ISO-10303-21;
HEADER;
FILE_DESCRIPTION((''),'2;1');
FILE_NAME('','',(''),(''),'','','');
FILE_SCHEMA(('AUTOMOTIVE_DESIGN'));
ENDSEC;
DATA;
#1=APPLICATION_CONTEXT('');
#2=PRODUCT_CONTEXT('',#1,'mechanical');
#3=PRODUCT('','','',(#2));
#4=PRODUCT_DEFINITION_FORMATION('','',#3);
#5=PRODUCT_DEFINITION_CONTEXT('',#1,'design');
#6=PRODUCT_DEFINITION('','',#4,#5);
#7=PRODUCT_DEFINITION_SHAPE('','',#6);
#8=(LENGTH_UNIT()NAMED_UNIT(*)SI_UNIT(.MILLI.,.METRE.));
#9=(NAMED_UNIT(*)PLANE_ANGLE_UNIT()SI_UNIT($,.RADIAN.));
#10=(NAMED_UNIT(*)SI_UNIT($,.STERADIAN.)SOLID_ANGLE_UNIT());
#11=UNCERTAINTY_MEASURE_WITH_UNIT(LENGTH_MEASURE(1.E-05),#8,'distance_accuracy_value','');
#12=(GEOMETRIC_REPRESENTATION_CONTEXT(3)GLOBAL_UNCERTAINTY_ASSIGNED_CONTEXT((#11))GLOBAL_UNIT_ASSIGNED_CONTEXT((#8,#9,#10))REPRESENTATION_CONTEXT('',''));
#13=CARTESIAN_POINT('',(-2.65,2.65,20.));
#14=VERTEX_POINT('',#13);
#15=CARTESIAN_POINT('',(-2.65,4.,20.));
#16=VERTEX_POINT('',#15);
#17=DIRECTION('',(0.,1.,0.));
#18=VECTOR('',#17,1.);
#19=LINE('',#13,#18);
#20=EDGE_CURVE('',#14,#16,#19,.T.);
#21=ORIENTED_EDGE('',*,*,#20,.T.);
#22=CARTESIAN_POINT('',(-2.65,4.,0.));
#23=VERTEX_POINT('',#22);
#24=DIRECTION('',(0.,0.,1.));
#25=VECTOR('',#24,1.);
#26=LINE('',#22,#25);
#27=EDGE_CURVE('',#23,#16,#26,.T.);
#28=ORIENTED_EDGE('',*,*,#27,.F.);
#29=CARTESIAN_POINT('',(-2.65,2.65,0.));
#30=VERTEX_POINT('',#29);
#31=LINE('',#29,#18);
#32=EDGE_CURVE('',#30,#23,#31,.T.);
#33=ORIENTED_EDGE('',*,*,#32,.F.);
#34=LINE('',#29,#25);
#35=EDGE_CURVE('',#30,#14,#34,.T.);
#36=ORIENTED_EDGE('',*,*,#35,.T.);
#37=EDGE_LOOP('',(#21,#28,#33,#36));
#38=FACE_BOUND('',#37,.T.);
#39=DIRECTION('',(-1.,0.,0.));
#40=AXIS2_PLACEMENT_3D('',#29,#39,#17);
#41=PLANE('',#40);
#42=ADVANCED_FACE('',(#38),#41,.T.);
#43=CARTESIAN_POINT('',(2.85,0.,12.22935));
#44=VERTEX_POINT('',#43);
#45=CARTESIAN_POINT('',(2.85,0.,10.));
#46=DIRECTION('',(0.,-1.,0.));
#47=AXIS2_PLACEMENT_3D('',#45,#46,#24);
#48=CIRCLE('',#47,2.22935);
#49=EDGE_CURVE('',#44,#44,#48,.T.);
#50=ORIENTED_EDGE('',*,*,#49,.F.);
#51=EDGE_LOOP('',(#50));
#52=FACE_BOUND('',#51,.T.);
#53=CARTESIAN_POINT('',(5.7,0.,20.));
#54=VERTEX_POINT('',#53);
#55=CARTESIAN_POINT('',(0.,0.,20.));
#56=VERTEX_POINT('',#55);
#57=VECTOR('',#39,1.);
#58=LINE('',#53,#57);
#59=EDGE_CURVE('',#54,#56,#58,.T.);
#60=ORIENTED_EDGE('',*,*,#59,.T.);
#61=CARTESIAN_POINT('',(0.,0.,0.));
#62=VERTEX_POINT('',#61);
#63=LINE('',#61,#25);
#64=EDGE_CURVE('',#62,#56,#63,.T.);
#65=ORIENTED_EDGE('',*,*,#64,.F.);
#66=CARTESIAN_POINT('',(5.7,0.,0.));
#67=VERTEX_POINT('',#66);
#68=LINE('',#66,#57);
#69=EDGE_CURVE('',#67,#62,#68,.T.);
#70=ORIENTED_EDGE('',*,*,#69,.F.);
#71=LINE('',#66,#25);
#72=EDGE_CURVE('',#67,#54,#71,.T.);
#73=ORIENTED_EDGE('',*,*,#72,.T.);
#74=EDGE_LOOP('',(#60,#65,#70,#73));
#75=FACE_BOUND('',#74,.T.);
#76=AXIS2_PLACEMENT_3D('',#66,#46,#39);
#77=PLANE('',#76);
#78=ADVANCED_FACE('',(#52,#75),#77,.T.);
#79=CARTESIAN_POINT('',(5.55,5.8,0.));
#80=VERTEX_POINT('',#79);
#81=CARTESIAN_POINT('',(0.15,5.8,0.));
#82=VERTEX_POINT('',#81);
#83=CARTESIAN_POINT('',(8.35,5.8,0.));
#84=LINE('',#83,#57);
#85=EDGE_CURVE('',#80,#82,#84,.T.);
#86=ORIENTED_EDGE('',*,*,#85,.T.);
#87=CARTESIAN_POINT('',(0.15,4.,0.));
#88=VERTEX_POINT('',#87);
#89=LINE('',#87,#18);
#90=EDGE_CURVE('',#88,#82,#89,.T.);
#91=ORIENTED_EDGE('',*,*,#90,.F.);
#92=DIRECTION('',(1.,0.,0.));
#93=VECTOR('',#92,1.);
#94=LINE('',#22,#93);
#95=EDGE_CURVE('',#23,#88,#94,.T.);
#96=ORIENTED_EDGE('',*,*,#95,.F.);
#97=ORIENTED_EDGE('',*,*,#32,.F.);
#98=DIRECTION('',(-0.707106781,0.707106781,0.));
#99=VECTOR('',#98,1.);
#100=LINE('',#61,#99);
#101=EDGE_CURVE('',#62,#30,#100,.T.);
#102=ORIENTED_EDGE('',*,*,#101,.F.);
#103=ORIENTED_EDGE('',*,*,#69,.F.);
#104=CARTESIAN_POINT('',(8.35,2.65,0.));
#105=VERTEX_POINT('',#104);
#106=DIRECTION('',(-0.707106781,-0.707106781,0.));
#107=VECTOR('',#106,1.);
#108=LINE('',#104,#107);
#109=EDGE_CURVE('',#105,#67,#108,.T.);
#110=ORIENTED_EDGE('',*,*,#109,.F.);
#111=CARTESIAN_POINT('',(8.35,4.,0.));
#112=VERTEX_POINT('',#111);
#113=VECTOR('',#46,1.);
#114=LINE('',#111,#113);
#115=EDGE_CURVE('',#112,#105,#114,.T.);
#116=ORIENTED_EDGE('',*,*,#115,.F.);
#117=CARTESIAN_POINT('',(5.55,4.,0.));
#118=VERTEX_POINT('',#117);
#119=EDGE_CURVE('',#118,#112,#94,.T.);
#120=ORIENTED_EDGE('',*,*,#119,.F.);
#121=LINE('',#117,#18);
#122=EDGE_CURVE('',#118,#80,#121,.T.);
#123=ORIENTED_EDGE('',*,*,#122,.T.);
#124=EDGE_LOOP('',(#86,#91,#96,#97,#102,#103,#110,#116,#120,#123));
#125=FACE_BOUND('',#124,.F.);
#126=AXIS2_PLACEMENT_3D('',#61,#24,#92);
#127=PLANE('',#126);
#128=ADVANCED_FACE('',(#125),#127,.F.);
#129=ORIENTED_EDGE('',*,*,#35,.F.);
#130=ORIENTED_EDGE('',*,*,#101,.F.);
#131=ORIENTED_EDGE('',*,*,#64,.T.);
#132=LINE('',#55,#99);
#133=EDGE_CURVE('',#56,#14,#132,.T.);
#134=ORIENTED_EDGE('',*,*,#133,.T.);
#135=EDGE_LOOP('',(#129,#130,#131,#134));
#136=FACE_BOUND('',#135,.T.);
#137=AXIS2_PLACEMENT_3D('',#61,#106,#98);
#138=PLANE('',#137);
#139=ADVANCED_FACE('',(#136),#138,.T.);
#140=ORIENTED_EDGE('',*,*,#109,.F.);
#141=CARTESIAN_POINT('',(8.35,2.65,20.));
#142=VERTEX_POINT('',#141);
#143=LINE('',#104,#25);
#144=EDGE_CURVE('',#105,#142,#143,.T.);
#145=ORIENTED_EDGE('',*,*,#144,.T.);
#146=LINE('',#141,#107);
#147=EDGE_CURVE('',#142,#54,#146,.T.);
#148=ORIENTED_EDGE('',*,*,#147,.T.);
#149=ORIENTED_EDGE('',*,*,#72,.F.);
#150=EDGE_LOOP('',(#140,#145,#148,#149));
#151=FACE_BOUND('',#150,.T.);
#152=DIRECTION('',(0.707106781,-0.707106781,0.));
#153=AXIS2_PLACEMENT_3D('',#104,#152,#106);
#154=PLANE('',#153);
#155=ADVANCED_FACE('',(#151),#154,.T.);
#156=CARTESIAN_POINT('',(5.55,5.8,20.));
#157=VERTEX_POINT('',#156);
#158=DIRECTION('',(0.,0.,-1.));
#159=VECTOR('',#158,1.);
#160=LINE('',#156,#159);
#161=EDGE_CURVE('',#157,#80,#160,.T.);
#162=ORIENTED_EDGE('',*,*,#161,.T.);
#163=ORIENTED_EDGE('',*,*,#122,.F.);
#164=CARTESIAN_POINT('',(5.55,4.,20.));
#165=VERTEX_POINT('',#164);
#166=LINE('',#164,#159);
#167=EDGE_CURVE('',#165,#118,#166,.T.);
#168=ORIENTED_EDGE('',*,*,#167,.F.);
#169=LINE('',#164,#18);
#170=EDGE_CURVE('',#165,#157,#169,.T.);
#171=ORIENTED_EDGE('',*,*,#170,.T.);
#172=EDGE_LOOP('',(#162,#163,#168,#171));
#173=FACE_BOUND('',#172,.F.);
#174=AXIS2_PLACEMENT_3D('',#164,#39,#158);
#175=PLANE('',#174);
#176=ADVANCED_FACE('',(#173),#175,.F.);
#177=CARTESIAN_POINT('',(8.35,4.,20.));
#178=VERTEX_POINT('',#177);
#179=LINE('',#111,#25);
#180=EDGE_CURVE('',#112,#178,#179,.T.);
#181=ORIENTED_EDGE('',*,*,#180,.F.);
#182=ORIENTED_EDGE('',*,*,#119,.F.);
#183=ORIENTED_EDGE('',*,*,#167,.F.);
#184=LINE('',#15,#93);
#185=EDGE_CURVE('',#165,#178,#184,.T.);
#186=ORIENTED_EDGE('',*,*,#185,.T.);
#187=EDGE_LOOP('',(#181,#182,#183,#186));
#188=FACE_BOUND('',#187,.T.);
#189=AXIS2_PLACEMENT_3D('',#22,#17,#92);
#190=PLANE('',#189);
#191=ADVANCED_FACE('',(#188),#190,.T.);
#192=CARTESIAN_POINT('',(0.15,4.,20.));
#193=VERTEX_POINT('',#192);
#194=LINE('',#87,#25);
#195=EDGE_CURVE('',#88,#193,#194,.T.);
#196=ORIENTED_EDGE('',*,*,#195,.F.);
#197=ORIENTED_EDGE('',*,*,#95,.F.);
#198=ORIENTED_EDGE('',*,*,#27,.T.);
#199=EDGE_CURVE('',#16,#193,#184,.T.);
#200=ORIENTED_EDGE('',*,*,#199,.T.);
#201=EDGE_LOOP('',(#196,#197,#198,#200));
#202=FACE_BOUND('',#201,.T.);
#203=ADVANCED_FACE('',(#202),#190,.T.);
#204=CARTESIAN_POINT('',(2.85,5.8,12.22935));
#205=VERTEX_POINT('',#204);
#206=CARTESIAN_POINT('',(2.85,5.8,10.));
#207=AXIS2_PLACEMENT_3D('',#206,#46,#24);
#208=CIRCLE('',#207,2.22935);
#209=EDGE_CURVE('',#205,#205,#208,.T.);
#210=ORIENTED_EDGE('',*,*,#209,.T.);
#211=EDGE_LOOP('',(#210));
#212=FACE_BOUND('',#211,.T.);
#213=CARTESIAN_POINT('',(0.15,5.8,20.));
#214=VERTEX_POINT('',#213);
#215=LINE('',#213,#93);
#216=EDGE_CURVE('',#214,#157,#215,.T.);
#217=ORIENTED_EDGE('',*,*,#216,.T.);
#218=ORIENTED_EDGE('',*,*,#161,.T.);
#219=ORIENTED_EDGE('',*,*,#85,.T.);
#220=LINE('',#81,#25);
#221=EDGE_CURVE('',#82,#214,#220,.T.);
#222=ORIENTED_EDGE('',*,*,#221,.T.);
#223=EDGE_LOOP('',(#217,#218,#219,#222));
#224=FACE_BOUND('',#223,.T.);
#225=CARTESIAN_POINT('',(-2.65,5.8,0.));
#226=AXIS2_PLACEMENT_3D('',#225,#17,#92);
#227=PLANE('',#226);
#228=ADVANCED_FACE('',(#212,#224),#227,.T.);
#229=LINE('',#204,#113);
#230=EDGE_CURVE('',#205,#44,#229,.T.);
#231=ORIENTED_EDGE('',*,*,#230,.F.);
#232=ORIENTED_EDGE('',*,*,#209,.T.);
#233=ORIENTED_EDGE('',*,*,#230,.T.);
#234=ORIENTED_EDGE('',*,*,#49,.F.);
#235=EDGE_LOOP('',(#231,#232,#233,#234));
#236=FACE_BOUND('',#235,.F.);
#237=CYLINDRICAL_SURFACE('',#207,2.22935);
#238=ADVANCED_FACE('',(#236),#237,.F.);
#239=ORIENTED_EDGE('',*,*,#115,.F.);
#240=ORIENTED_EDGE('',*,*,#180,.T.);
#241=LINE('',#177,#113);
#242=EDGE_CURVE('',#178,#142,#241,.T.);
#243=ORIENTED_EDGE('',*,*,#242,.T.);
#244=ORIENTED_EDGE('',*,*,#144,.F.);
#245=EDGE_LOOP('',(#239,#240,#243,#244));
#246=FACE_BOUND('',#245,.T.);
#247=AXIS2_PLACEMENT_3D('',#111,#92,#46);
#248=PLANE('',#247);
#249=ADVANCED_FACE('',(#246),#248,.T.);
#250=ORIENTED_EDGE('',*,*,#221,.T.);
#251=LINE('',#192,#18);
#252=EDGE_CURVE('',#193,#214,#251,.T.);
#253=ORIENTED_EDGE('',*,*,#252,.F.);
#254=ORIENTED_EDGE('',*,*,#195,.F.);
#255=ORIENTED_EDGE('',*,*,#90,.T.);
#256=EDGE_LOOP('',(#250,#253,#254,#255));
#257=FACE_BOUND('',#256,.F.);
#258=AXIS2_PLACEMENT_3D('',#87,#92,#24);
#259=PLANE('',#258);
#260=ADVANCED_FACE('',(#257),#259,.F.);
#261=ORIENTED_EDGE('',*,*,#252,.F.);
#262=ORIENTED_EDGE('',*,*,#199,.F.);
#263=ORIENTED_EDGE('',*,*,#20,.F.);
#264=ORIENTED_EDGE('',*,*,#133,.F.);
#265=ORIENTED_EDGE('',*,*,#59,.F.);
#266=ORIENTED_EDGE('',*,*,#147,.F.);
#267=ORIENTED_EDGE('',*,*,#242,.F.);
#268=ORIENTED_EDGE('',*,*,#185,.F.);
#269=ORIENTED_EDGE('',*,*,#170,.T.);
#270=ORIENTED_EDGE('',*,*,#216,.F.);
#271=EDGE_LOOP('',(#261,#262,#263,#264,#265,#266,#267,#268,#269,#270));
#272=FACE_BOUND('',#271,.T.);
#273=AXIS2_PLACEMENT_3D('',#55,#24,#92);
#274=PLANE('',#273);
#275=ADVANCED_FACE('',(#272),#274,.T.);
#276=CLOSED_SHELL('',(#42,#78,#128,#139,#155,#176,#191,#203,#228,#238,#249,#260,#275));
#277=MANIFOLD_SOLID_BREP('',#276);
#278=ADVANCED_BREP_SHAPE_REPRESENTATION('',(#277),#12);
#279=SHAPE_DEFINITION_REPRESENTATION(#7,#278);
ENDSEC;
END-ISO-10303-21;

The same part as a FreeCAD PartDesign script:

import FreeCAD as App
import Part
import Sketcher

doc = App.newDocument("Part")
body = doc.addObject("PartDesign::Body", "Body")

# Sketch on XY plane
sketch1 = body.newObject("Sketcher::SketchObject", "Sketch")
sketch1.AttachmentSupport = (doc.getObject("XY_Plane"), [""])
sketch1.MapMode = "FlatFace"
sketch1.addGeometry([
    Part.LineSegment(App.Vector(-2.65, 2.65, 0), App.Vector(0, 0, 0)),  # 0
    Part.LineSegment(App.Vector(0, 0, 0), App.Vector(5.7, 0, 0)),  # 1
    Part.LineSegment(App.Vector(5.7, 0, 0), App.Vector(8.35, 2.65, 0)),  # 2
    Part.LineSegment(App.Vector(8.35, 2.65, 0), App.Vector(8.35, 4, 0)),  # 3
    Part.LineSegment(App.Vector(8.35, 4, 0), App.Vector(-2.65, 4, 0)),  # 4
    Part.LineSegment(App.Vector(-2.65, 4, 0), App.Vector(-2.65, 2.65, 0)),  # 5
], False)
sketch1.addConstraint([
    Sketcher.Constraint("Coincident", 0, 2, 1, 1),
    Sketcher.Constraint("Coincident", 1, 2, 2, 1),
    Sketcher.Constraint("Coincident", 2, 2, 3, 1),
    Sketcher.Constraint("Coincident", 3, 2, 4, 1),
    Sketcher.Constraint("Coincident", 4, 2, 5, 1),
    Sketcher.Constraint("Coincident", 5, 2, 0, 1),
    Sketcher.Constraint("Horizontal", 1),
    Sketcher.Constraint("Vertical", 3),
    Sketcher.Constraint("Horizontal", 4),
    Sketcher.Constraint("Vertical", 5),
    Sketcher.Constraint("Coincident", 0, 2, -1, 1),
    Sketcher.Constraint("Perpendicular", 0, 2),
    Sketcher.Constraint("Horizontal", 2, 2, 5, 2),
    Sketcher.Constraint("Equal", 0, 2),
    Sketcher.Constraint("DistanceX", 4, 2, 4, 1, 11.0),
    Sketcher.Constraint("DistanceX", 1, 1, 1, 2, 5.7),
    Sketcher.Constraint("DistanceY", -1, 1, 3, 2, 4.0),
])
pad1 = body.newObject("PartDesign::Pad", "Pad")
pad1.Profile = sketch1
pad1.Length = 20

# Sketch on XZ plane
sketch2 = body.newObject("Sketcher::SketchObject", "Sketch001")
sketch2.AttachmentSupport = (doc.getObject("XZ_Plane"), [""])
sketch2.MapMode = "FlatFace"
sketch2.AttachmentOffset = App.Placement(App.Vector(0, 0, -4), App.Rotation())
sketch2.addGeometry([
    Part.LineSegment(App.Vector(5.55, 20, 0), App.Vector(5.55, 0, 0)),
    Part.LineSegment(App.Vector(5.55, 0, 0), App.Vector(0.15, 0, 0)),
    Part.LineSegment(App.Vector(0.15, 0, 0), App.Vector(0.15, 20, 0)),
    Part.LineSegment(App.Vector(0.15, 20, 0), App.Vector(5.55, 20, 0)),
], False)
sketch2.addConstraint([
    Sketcher.Constraint("Coincident", 0, 2, 1, 1),
    Sketcher.Constraint("Coincident", 1, 2, 2, 1),
    Sketcher.Constraint("Coincident", 2, 2, 3, 1),
    Sketcher.Constraint("Coincident", 3, 2, 0, 1),
    Sketcher.Constraint("Vertical", 0),
    Sketcher.Constraint("Horizontal", 1),
    Sketcher.Constraint("Vertical", 2),
    Sketcher.Constraint("Horizontal", 3),
    Sketcher.Constraint("PointOnObject", 0, 2, -1),
    Sketcher.Constraint("DistanceY", 0, 2, 0, 1, 20.0),
    Sketcher.Constraint("DistanceX", 1, 2, 1, 1, 5.4),
    Sketcher.Constraint("DistanceX", -1, 1, 0, 2, 5.55),
])
pad2 = body.newObject("PartDesign::Pad", "Pad001")
pad2.Profile = sketch2
pad2.Length = 1.8
pad2.Reversed = True

# Sketch on XZ plane
sketch3 = body.newObject("Sketcher::SketchObject", "Sketch002")
sketch3.AttachmentSupport = (doc.getObject("XZ_Plane"), [""])
sketch3.MapMode = "FlatFace"
sketch3.AttachmentOffset = App.Placement(App.Vector(0, 0, -5.8), App.Rotation())
sketch3.addGeometry(Part.Circle(App.Vector(2.85, 10, 0), App.Vector(0, 0, 1), 2.22935), False)
sketch3.addConstraint([
    Sketcher.Constraint("DistanceY", -1, 1, 0, 3, 10.0),
    Sketcher.Constraint("Diameter", 0, 4.4587),
    Sketcher.Constraint("DistanceX", -1, 1, 0, 3, 2.85),
])
doc.recompute()
hole = body.newObject("PartDesign::Hole", "Hole")
hole.Profile = sketch3
hole.ThreadType = "None"
hole.Diameter = 4.4587
hole.DepthType = "Dimension"
hole.Depth = 10
hole.DrillPoint = "Flat"
hole.Reversed = True

doc.recompute()
